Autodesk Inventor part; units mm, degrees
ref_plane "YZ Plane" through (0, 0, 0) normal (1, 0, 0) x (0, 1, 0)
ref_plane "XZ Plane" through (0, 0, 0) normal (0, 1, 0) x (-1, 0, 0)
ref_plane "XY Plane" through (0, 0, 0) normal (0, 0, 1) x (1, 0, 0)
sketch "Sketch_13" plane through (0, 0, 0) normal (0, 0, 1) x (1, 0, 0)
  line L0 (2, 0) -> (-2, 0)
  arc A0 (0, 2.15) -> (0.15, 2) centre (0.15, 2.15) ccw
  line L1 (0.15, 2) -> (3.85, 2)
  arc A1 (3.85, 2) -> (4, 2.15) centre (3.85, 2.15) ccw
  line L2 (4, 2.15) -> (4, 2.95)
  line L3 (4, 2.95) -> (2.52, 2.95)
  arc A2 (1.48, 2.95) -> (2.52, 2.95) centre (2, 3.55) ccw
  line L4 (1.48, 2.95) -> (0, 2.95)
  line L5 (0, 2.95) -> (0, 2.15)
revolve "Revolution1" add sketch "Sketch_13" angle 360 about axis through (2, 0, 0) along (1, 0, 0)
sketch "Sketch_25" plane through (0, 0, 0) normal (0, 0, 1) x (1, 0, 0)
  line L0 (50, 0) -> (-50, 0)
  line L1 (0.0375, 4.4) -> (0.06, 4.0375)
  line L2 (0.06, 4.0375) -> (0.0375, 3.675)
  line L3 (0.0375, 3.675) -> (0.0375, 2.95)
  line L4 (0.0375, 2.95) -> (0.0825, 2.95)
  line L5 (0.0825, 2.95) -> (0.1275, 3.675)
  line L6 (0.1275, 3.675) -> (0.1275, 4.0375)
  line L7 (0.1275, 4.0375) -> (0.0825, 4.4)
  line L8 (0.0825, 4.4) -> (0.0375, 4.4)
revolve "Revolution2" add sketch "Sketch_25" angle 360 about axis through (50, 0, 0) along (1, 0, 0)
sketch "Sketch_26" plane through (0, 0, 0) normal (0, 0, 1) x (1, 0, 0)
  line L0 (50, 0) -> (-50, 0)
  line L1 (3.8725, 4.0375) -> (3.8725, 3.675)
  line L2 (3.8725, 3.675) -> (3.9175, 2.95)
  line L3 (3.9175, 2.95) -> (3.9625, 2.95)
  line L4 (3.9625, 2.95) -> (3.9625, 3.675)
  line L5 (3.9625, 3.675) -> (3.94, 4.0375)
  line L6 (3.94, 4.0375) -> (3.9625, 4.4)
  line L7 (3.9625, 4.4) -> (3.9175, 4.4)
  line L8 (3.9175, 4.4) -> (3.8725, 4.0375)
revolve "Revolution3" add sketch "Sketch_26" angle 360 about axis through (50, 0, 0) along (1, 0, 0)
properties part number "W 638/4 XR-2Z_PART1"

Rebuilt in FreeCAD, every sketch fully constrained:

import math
import FreeCAD as App
import Part
import Sketcher

V = App.Vector


def add_polygon(sketch, points):
    """Adds a closed chain of lines whose ends are joined by coincident constraints."""
    first, n = sketch.GeometryCount, len(points)
    for a, b in zip(points, points[1:] + points[:1]):
        sketch.addGeometry(Part.LineSegment(App.Vector(*a, 0), App.Vector(*b, 0)), False)
    for i in range(n):
        sketch.addConstraint(Sketcher.Constraint("Coincident", first + i, 2, first + (i + 1) % n, 1))

doc = App.newDocument("Part")
body = doc.addObject("PartDesign::Body", "Body")

sketch1 = doc.addObject("Sketcher::SketchObject", "Sketch")
body.addObject(sketch1)
sketch1.AttachmentSupport = (doc.XY_Plane, [""])
sketch1.MapMode = "FlatFace"
sketch1.addGeometry(Part.LineSegment(V(0, 2.95, 0), V(0, 2.15, 0)), False)
sketch1.addGeometry(Part.ArcOfCircle(Part.Circle(V(0.15, 2.15, 0), V(0, 0, 1), 0.15), math.radians(180), math.radians(270)), False)
sketch1.addGeometry(Part.LineSegment(V(0.15, 2, 0), V(3.85, 2, 0)), False)
sketch1.addGeometry(Part.ArcOfCircle(Part.Circle(V(3.85, 2.15, 0), V(0, 0, 1), 0.15), math.radians(-90), math.radians(0)), False)
sketch1.addGeometry(Part.LineSegment(V(4, 2.15, 0), V(4, 2.95, 0)), False)
sketch1.addGeometry(Part.LineSegment(V(4, 2.95, 0), V(2.52, 2.95, 0)), False)
sketch1.addGeometry(Part.ArcOfCircle(Part.Circle(V(2, 3.55, 0), V(0, 0, 1), 0.79), math.radians(-131), math.radians(-49)), False)
sketch1.addGeometry(Part.LineSegment(V(1.48, 2.95, 0), V(0, 2.95, 0)), False)
sketch1.addConstraint(Sketcher.Constraint("Tangent", 0, 2, 1, 1))
sketch1.addConstraint(Sketcher.Constraint("Tangent", 1, 2, 2, 1))
sketch1.addConstraint(Sketcher.Constraint("Tangent", 2, 2, 3, 1))
sketch1.addConstraint(Sketcher.Constraint("Tangent", 3, 2, 4, 1))
sketch1.addConstraint(Sketcher.Constraint("Coincident", 4, 2, 5, 1))
sketch1.addConstraint(Sketcher.Constraint("Coincident", 5, 2, 6, 2))
sketch1.addConstraint(Sketcher.Constraint("Coincident", 6, 1, 7, 1))
sketch1.addConstraint(Sketcher.Constraint("Coincident", 7, 2, 0, 1))
sketch1.addConstraint(Sketcher.Constraint("Vertical", 0))
sketch1.addConstraint(Sketcher.Constraint("Horizontal", 2))
sketch1.addConstraint(Sketcher.Constraint("Vertical", 4))
sketch1.addConstraint(Sketcher.Constraint("Horizontal", 5))
sketch1.addConstraint(Sketcher.Constraint("Horizontal", 7))
sketch1.addConstraint(Sketcher.Constraint("Equal", 1, 3))
sketch1.addConstraint(Sketcher.Constraint("PointOnObject", 0, 2, -2))
sketch1.addConstraint(Sketcher.Constraint("Horizontal", 5, 2, 6, 1))
sketch1.addConstraint(Sketcher.Constraint("Equal", 5, 7))
sketch1.addConstraint(Sketcher.Constraint("Radius", 1, 0.15))
sketch1.addConstraint(Sketcher.Constraint("DistanceX", 2, 1, 2, 2, 3.7))
sketch1.addConstraint(Sketcher.Constraint("DistanceY", 0, 2, 0, 1, 0.8))
sketch1.addConstraint(Sketcher.Constraint("DistanceY", -1, 1, 1, 2, 2.0))
sketch1.addConstraint(Sketcher.Constraint("Radius", 6, 0.794))
sketch1.addConstraint(Sketcher.Constraint("DistanceX", 5, 2, 5, 1, 1.48))
revolution = doc.addObject("PartDesign::Revolution", "Revolution")
body.addObject(revolution)
revolution.Profile = sketch1
revolution.ReferenceAxis = (sketch1, ["H_Axis"])
revolution.Angle = 360

sketch2 = doc.addObject("Sketcher::SketchObject", "Sketch001")
body.addObject(sketch2)
sketch2.AttachmentSupport = (doc.XY_Plane, [""])
sketch2.MapMode = "FlatFace"
add_polygon(sketch2, [(0.083, 4.4), (0.037, 4.4), (0.06, 4.037), (0.037, 3.675), (0.037, 2.95), (0.083, 2.95), (0.128, 3.675), (0.128, 4.037)])
sketch2.addConstraint(Sketcher.Constraint("Horizontal", 0))
sketch2.addConstraint(Sketcher.Constraint("Vertical", 3))
sketch2.addConstraint(Sketcher.Constraint("Horizontal", 4))
sketch2.addConstraint(Sketcher.Constraint("Vertical", 6))
sketch2.addConstraint(Sketcher.Constraint("Parallel", 2, 5))
sketch2.addConstraint(Sketcher.Constraint("Horizontal", 2, 2, 5, 2))
sketch2.addConstraint(Sketcher.Constraint("Horizontal", 1, 2, 6, 2))
sketch2.addConstraint(Sketcher.Constraint("Vertical", 0, 2, 2, 2))
sketch2.addConstraint(Sketcher.Constraint("Vertical", 4, 2, 7, 2))
sketch2.addConstraint(Sketcher.Constraint("Equal", 1, 2))
sketch2.addConstraint(Sketcher.Constraint("DistanceY", -1, 1, 0, 2, 4.4))
sketch2.addConstraint(Sketcher.Constraint("DistanceX", 0, 2, 0, 1, 0.045))
sketch2.addConstraint(Sketcher.Constraint("DistanceY", 3, 2, 3, 1, 0.725))
sketch2.addConstraint(Sketcher.Constraint("DistanceX", -1, 1, 1, 2, 0.06))
sketch2.addConstraint(Sketcher.Constraint("DistanceY", -1, 1, 3, 2, 2.95))
sketch2.addConstraint(Sketcher.Constraint("DistanceX", 2, 2, 5, 2, 0.09))
revolution2 = doc.addObject("PartDesign::Revolution", "Revolution001")
body.addObject(revolution2)
revolution2.Profile = sketch2
revolution2.ReferenceAxis = (sketch2, ["H_Axis"])
revolution2.Angle = 360

sketch3 = doc.addObject("Sketcher::SketchObject", "Sketch002")
body.addObject(sketch3)
sketch3.AttachmentSupport = (doc.XY_Plane, [""])
sketch3.MapMode = "FlatFace"
add_polygon(sketch3, [(3.917, 4.4), (3.873, 4.037), (3.873, 3.675), (3.917, 2.95), (3.962, 2.95), (3.962, 3.675), (3.94, 4.037), (3.962, 4.4)])
sketch3.addConstraint(Sketcher.Constraint("Vertical", 1))
sketch3.addConstraint(Sketcher.Constraint("Horizontal", 3))
sketch3.addConstraint(Sketcher.Constraint("Vertical", 4))
sketch3.addConstraint(Sketcher.Constraint("Horizontal", 7))
sketch3.addConstraint(Sketcher.Constraint("Parallel", 2, 5))
sketch3.addConstraint(Sketcher.Constraint("Horizontal", 1, 2, 4, 2))
sketch3.addConstraint(Sketcher.Constraint("Horizontal", 0, 2, 5, 2))
sketch3.addConstraint(Sketcher.Constraint("Vertical", 4, 2, 6, 2))
sketch3.addConstraint(Sketcher.Constraint("Vertical", 2, 2, 7, 2))
sketch3.addConstraint(Sketcher.Constraint("Equal", 5, 6))
sketch3.addConstraint(Sketcher.Constraint("DistanceY", -1, 1, 6, 2, 4.4))
sketch3.addConstraint(Sketcher.Constraint("DistanceX", 3, 1, 3, 2, 0.045))
sketch3.addConstraint(Sketcher.Constraint("DistanceY", 4, 1, 4, 2, 0.725))
sketch3.addConstraint(Sketcher.Constraint("DistanceY", -1, 1, 2, 2, 2.95))
sketch3.addConstraint(Sketcher.Constraint("DistanceX", -1, 1, 5, 2, 3.94))
sketch3.addConstraint(Sketcher.Constraint("DistanceX", 1, 2, 3, 2, 0.09))
revolution3 = doc.addObject("PartDesign::Revolution", "Revolution002")
body.addObject(revolution3)
revolution3.Profile = sketch3
revolution3.ReferenceAxis = (sketch3, ["H_Axis"])
revolution3.Angle = 360

doc.recompute()
